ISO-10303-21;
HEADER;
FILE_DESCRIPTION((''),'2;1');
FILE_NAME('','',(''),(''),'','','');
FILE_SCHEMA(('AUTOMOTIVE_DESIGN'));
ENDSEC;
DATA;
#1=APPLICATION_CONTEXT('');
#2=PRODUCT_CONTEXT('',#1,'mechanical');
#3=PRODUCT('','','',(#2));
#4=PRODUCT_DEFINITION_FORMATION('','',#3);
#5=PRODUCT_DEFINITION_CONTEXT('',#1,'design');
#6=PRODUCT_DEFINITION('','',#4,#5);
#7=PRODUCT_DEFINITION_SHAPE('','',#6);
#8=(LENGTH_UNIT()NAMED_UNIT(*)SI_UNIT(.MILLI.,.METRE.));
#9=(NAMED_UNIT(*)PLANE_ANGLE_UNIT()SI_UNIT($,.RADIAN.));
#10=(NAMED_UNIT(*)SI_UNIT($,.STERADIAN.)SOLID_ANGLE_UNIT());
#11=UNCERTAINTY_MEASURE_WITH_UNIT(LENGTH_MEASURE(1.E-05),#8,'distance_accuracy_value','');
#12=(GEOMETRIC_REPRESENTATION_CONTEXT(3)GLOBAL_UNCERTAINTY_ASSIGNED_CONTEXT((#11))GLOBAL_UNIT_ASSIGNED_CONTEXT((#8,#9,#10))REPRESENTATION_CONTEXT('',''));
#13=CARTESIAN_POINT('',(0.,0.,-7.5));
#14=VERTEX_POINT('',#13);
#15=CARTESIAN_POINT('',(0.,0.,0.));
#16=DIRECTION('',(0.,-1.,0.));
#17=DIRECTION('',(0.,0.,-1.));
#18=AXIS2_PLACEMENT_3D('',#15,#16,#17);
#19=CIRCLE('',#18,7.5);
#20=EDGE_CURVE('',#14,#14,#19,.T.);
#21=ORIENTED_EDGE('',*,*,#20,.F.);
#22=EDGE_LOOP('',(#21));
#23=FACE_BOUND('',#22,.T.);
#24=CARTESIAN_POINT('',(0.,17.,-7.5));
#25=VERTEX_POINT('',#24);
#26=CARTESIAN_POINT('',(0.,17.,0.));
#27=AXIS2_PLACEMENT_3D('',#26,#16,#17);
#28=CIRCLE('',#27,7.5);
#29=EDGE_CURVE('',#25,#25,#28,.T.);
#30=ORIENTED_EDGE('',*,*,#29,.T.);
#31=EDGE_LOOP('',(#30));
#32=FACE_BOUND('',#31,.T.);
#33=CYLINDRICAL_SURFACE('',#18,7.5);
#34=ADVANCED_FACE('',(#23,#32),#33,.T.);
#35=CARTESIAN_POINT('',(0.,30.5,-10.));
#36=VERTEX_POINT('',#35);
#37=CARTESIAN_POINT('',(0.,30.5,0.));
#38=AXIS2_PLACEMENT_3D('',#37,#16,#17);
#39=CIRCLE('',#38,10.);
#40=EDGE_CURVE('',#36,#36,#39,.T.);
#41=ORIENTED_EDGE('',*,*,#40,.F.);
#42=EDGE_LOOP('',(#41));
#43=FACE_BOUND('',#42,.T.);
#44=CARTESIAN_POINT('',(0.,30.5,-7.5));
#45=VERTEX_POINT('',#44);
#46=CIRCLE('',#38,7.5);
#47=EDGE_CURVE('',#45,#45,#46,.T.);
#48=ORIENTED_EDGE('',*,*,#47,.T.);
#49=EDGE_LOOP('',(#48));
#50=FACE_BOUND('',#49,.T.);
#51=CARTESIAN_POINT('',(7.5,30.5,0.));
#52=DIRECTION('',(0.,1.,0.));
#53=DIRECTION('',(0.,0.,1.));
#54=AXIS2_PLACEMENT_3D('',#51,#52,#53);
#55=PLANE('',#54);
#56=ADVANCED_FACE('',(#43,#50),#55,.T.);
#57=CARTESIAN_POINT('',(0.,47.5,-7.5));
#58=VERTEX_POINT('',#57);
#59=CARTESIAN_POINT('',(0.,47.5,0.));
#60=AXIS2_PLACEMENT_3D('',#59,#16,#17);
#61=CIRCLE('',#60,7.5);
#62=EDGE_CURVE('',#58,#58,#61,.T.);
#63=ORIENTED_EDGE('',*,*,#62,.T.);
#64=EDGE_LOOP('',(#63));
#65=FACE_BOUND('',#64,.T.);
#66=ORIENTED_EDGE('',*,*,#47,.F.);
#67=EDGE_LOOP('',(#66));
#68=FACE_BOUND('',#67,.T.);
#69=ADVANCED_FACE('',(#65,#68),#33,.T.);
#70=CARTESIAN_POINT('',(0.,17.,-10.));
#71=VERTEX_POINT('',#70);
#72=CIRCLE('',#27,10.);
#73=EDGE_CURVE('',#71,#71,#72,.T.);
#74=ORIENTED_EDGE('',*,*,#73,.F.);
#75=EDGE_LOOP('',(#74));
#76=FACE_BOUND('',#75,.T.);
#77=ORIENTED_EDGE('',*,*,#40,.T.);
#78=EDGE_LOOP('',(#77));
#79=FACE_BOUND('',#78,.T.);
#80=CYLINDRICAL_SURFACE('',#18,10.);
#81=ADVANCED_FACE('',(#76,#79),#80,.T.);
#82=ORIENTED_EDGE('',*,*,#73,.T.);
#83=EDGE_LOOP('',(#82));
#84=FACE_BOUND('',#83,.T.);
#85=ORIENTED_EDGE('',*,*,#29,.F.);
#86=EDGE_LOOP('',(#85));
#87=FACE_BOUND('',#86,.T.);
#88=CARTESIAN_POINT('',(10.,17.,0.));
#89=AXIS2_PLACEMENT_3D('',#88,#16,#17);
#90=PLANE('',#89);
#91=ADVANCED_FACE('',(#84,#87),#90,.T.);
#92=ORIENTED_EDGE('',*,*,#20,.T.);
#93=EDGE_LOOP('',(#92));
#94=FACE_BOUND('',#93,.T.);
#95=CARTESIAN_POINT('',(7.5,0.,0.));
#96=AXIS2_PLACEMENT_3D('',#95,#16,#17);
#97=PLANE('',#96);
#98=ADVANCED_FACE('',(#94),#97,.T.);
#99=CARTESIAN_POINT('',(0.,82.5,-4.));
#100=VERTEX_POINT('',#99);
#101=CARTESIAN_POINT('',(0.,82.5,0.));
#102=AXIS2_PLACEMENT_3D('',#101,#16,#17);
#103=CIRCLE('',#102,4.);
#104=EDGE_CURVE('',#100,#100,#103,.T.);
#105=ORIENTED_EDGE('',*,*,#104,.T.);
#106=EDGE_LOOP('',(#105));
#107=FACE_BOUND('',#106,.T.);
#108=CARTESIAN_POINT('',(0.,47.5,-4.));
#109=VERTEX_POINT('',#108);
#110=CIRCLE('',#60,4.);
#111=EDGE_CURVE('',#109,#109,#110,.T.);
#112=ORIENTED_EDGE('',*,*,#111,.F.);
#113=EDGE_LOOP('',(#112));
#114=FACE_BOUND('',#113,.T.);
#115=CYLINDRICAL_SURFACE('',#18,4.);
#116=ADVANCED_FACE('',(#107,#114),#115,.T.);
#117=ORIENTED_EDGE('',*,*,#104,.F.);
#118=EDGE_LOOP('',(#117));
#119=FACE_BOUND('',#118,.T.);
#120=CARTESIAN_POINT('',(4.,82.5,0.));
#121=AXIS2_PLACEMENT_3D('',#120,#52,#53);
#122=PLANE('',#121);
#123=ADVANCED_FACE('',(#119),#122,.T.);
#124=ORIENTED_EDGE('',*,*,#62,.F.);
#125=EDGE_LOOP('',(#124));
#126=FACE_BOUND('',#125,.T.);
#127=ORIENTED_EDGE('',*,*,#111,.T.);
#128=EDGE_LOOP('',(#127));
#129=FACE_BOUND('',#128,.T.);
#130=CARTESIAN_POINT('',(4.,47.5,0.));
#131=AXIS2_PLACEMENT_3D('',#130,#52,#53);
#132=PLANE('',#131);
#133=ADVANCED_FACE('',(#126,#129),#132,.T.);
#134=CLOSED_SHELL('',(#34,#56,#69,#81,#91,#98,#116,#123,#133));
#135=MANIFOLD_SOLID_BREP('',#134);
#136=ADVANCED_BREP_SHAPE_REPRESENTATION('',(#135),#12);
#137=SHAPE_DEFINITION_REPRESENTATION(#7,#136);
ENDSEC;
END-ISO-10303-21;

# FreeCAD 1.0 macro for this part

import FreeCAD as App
import Part
import Sketcher
Q = App.Units.Quantity

doc = App.newDocument("Part")
body = doc.addObject("PartDesign::Body", "Body")

# Sketch on XY plane
sketch1 = body.newObject("Sketcher::SketchObject", "Sketch")
sketch1.AttachmentSupport = (doc.getObject("XY_Plane"), [""])
sketch1.MapMode = "FlatFace"
sketch1.addGeometry(Part.LineSegment(App.Vector(7.5, 47.5, 0), App.Vector(4, 47.5, 0)), False)
sketch1.addGeometry(Part.LineSegment(App.Vector(4, 47.5, 0), App.Vector(4, 82.5, 0)), False)
sketch1.addGeometry(Part.LineSegment(App.Vector(4, 82.5, 0), App.Vector(0, 82.5, 0)), False)
sketch1.addGeometry(Part.LineSegment(App.Vector(0, 82.5, 0), App.Vector(0, 0, 0)), False)
sketch1.addGeometry(Part.LineSegment(App.Vector(0, 0, 0), App.Vector(7.5, 0, 0)), False)
sketch1.addGeometry(Part.LineSegment(App.Vector(7.5, 0, 0), App.Vector(7.5, 17, 0)), False)
sketch1.addGeometry(Part.LineSegment(App.Vector(7.5, 17, 0), App.Vector(10, 17, 0)), False)
sketch1.addGeometry(Part.LineSegment(App.Vector(10, 17, 0), App.Vector(10, 30.5, 0)), False)
sketch1.addGeometry(Part.LineSegment(App.Vector(10, 30.5, 0), App.Vector(7.5, 30.5, 0)), False)
sketch1.addGeometry(Part.LineSegment(App.Vector(7.5, 30.5, 0), App.Vector(7.5, 47.5, 0)), False)
sketch1.addConstraint(Sketcher.Constraint("Coincident", 0, 2, 1, 1))
sketch1.addConstraint(Sketcher.Constraint("Coincident", 1, 2, 2, 1))
sketch1.addConstraint(Sketcher.Constraint("Coincident", 2, 2, 3, 1))
sketch1.addConstraint(Sketcher.Constraint("Coincident", 3, 2, 4, 1))
sketch1.addConstraint(Sketcher.Constraint("Coincident", 4, 2, 5, 1))
sketch1.addConstraint(Sketcher.Constraint("Coincident", 5, 2, 6, 1))
sketch1.addConstraint(Sketcher.Constraint("Coincident", 6, 2, 7, 1))
sketch1.addConstraint(Sketcher.Constraint("Coincident", 7, 2, 8, 1))
sketch1.addConstraint(Sketcher.Constraint("Coincident", 8, 2, 9, 1))
sketch1.addConstraint(Sketcher.Constraint("Coincident", 9, 2, 0, 1))
sketch1.addConstraint(Sketcher.Constraint("Horizontal", 0))
sketch1.addConstraint(Sketcher.Constraint("Vertical", 1))
sketch1.addConstraint(Sketcher.Constraint("Horizontal", 2))
sketch1.addConstraint(Sketcher.Constraint("Vertical", 3))
sketch1.addConstraint(Sketcher.Constraint("Horizontal", 4))
sketch1.addConstraint(Sketcher.Constraint("Vertical", 5))
sketch1.addConstraint(Sketcher.Constraint("Horizontal", 6))
sketch1.addConstraint(Sketcher.Constraint("Vertical", 7))
sketch1.addConstraint(Sketcher.Constraint("Horizontal", 8))
sketch1.addConstraint(Sketcher.Constraint("Vertical", 9))
sketch1.addConstraint(Sketcher.Constraint("Coincident", 3, 2, -1, 1))
sketch1.addConstraint(Sketcher.Constraint("Vertical", 5, 2, 8, 2))
sketch1.addConstraint(Sketcher.Constraint("Equal", 5, 9))
sketch1.addConstraint(Sketcher.Constraint("DistanceX", 2, 2, 2, 1, Q("4 mm")))
sketch1.addConstraint(Sketcher.Constraint("DistanceY", 1, 1, 1, 2, Q("35 mm")))
sketch1.addConstraint(Sketcher.Constraint("DistanceY", 5, 1, 5, 2, Q("17 mm")))
sketch1.addConstraint(Sketcher.Constraint("DistanceX", 0, 2, 0, 1, Q("3.5 mm")))
sketch1.addConstraint(Sketcher.Constraint("DistanceX", 6, 1, 6, 2, Q("2.5 mm")))
sketch1.addConstraint(Sketcher.Constraint("DistanceY", 3, 2, 3, 1, Q("82.5 mm")))
revolution = body.newObject("PartDesign::Revolution", "Revolution")
revolution.Profile = sketch1
revolution.ReferenceAxis = (sketch1, ["V_Axis"])
revolution.Angle = 360

doc.recompute()
